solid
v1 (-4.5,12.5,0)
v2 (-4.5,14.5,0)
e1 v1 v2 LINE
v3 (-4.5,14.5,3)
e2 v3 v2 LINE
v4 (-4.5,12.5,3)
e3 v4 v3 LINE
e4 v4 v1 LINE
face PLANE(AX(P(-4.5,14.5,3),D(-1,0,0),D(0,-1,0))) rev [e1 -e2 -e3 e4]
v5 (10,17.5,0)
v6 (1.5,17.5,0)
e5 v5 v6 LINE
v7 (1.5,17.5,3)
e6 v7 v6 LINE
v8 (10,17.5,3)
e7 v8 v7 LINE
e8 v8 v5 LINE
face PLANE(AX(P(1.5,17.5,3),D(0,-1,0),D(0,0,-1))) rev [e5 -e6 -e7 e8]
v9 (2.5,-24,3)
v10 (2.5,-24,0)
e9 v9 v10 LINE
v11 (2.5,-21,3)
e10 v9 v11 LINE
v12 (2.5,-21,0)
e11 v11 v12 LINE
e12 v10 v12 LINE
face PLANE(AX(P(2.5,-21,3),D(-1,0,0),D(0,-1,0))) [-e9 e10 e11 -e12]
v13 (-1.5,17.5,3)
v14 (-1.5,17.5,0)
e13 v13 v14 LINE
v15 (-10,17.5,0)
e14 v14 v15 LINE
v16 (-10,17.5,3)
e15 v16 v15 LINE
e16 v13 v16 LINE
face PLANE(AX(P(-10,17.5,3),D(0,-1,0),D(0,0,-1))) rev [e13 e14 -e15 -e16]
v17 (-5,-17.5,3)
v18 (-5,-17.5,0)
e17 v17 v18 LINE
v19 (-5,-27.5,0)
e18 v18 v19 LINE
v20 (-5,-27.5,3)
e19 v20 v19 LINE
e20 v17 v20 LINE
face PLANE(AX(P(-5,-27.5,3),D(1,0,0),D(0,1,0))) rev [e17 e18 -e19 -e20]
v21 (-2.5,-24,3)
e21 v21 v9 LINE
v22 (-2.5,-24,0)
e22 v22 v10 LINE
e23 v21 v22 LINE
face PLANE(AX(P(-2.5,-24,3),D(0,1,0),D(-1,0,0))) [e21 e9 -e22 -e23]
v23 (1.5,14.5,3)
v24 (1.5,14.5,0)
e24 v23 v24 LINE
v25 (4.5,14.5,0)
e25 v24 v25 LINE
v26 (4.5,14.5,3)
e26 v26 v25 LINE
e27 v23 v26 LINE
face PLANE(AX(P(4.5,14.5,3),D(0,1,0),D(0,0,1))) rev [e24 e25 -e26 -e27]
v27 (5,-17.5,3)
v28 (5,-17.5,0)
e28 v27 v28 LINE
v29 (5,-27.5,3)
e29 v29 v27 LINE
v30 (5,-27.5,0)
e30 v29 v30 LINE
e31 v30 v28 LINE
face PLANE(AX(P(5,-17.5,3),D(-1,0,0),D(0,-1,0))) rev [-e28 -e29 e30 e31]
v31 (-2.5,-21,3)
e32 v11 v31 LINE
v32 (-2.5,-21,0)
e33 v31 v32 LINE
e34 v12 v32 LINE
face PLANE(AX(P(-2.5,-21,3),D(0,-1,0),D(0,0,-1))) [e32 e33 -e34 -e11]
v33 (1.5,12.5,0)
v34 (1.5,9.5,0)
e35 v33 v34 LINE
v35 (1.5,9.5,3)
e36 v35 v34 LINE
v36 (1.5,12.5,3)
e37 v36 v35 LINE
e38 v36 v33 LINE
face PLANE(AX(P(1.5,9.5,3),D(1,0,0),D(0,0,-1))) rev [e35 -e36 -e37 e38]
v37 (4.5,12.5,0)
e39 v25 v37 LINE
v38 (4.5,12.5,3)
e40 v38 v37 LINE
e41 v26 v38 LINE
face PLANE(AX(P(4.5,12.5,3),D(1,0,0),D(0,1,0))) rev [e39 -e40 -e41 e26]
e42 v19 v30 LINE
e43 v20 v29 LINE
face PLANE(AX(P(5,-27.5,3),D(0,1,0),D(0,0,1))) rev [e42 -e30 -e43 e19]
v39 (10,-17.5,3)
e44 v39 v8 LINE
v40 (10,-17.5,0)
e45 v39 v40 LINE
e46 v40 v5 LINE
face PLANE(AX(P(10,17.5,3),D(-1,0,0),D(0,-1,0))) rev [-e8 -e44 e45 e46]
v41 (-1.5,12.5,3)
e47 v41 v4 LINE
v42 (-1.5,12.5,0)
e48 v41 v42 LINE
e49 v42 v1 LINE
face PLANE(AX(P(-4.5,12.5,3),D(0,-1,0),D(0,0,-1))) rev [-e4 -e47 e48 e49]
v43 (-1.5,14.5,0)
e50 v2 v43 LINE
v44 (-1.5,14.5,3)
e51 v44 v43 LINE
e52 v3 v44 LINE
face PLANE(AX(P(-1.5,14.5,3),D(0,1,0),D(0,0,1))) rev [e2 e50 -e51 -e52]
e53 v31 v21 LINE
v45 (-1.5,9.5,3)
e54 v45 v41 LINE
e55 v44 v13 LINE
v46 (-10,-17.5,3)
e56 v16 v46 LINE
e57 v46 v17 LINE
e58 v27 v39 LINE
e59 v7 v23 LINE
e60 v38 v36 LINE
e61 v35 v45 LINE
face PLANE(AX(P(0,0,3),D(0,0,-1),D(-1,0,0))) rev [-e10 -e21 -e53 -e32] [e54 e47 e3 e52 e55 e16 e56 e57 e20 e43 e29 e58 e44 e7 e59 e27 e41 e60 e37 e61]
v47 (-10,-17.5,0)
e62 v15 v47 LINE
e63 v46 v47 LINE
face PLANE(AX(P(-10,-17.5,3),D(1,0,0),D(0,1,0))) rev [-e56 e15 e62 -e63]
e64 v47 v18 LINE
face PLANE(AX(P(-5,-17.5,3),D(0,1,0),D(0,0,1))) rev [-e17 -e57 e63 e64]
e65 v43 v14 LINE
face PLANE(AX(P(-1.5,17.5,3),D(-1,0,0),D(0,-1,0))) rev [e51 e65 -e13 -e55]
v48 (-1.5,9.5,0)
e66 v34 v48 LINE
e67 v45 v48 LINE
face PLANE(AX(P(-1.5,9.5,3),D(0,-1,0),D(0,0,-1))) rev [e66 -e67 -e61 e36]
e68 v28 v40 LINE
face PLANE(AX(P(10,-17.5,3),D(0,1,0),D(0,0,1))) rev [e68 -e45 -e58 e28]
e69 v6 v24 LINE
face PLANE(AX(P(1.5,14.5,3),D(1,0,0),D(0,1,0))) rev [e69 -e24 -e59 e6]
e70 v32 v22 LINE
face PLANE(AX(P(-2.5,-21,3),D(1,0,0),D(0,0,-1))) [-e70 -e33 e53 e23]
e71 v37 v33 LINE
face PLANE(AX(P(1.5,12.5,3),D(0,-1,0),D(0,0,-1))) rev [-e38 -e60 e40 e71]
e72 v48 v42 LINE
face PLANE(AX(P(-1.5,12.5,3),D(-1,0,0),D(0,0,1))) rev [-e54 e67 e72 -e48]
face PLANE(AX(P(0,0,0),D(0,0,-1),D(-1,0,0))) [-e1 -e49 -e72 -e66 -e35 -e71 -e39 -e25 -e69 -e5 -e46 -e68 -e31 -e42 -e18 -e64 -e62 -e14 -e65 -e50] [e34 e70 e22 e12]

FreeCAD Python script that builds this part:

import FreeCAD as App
import Part
import Sketcher

V = App.Vector
Q = App.Units.Quantity

doc = App.newDocument("Part")
body = doc.addObject("PartDesign::Body", "Body")

# Sketch on XY plane
sketch1 = body.newObject("Sketcher::SketchObject", "Sketch")
sketch1.AttachmentSupport = (doc.getObject("XY_Plane"), [""])
sketch1.MapMode = "FlatFace"
sketch1.addGeometry([
    Part.LineSegment(V(-1.5, 14.5, 0), V(-1.5, 17.5, 0)),  # 0
    Part.LineSegment(V(-1.5, 17.5, 0), V(-10, 17.5, 0)),  # 1
    Part.LineSegment(V(-10, 17.5, 0), V(-10, -17.5, 0)),  # 2
    Part.LineSegment(V(-10, -17.5, 0), V(-5, -17.5, 0)),  # 3
    Part.LineSegment(V(-5, -17.5, 0), V(-5, -27.5, 0)),  # 4
    Part.LineSegment(V(-5, -27.5, 0), V(5, -27.5, 0)),  # 5
    Part.LineSegment(V(5, -27.5, 0), V(5, -17.5, 0)),  # 6
    Part.LineSegment(V(5, -17.5, 0), V(10, -17.5, 0)),  # 7
    Part.LineSegment(V(10, -17.5, 0), V(10, 17.5, 0)),  # 8
    Part.LineSegment(V(10, 17.5, 0), V(1.5, 17.5, 0)),  # 9
    Part.LineSegment(V(1.5, 17.5, 0), V(1.5, 14.5, 0)),  # 10
    Part.LineSegment(V(1.5, 14.5, 0), V(4.5, 14.5, 0)),  # 11
    Part.LineSegment(V(4.5, 14.5, 0), V(4.5, 12.5, 0)),  # 12
    Part.LineSegment(V(4.5, 12.5, 0), V(1.5, 12.5, 0)),  # 13
    Part.LineSegment(V(1.5, 12.5, 0), V(1.5, 9.5, 0)),  # 14
    Part.LineSegment(V(1.5, 9.5, 0), V(-1.5, 9.5, 0)),  # 15
    Part.LineSegment(V(-1.5, 9.5, 0), V(-1.5, 12.5, 0)),  # 16
    Part.LineSegment(V(-1.5, 12.5, 0), V(-4.5, 12.5, 0)),  # 17
    Part.LineSegment(V(-4.5, 12.5, 0), V(-4.5, 14.5, 0)),  # 18
    Part.LineSegment(V(-4.5, 14.5, 0), V(-1.5, 14.5, 0)),  # 19
    Part.LineSegment(V(-2.5, -24, 0), V(-2.5, -21, 0)),  # 20
    Part.LineSegment(V(-2.5, -21, 0), V(2.5, -21, 0)),  # 21
    Part.LineSegment(V(2.5, -21, 0), V(2.5, -24, 0)),  # 22
    Part.LineSegment(V(2.5, -24, 0), V(-2.5, -24, 0)),  # 23
], False)
sketch1.addConstraint([
    Sketcher.Constraint("Coincident", 0, 2, 1, 1),
    Sketcher.Constraint("Coincident", 1, 2, 2, 1),
    Sketcher.Constraint("Coincident", 2, 2, 3, 1),
    Sketcher.Constraint("Coincident", 3, 2, 4, 1),
    Sketcher.Constraint("Coincident", 4, 2, 5, 1),
    Sketcher.Constraint("Coincident", 5, 2, 6, 1),
    Sketcher.Constraint("Coincident", 6, 2, 7, 1),
    Sketcher.Constraint("Coincident", 7, 2, 8, 1),
    Sketcher.Constraint("Coincident", 8, 2, 9, 1),
    Sketcher.Constraint("Coincident", 9, 2, 10, 1),
    Sketcher.Constraint("Coincident", 10, 2, 11, 1),
    Sketcher.Constraint("Coincident", 11, 2, 12, 1),
    Sketcher.Constraint("Coincident", 12, 2, 13, 1),
    Sketcher.Constraint("Coincident", 13, 2, 14, 1),
    Sketcher.Constraint("Coincident", 14, 2, 15, 1),
    Sketcher.Constraint("Coincident", 15, 2, 16, 1),
    Sketcher.Constraint("Coincident", 16, 2, 17, 1),
    Sketcher.Constraint("Coincident", 17, 2, 18, 1),
    Sketcher.Constraint("Coincident", 18, 2, 19, 1),
    Sketcher.Constraint("Coincident", 19, 2, 0, 1),
    Sketcher.Constraint("Coincident", 20, 2, 21, 1),
    Sketcher.Constraint("Coincident", 21, 2, 22, 1),
    Sketcher.Constraint("Coincident", 22, 2, 23, 1),
    Sketcher.Constraint("Coincident", 23, 2, 20, 1),
    Sketcher.Constraint("Vertical", 0),
    Sketcher.Constraint("Horizontal", 1),
    Sketcher.Constraint("Vertical", 2),
    Sketcher.Constraint("Horizontal", 3),
    Sketcher.Constraint("Vertical", 4),
    Sketcher.Constraint("Horizontal", 5),
    Sketcher.Constraint("Vertical", 6),
    Sketcher.Constraint("Horizontal", 7),
    Sketcher.Constraint("Vertical", 8),
    Sketcher.Constraint("Horizontal", 9),
    Sketcher.Constraint("Vertical", 10),
    Sketcher.Constraint("Horizontal", 11),
    Sketcher.Constraint("Vertical", 12),
    Sketcher.Constraint("Horizontal", 13),
    Sketcher.Constraint("Vertical", 14),
    Sketcher.Constraint("Horizontal", 15),
    Sketcher.Constraint("Vertical", 16),
    Sketcher.Constraint("Horizontal", 17),
    Sketcher.Constraint("Vertical", 18),
    Sketcher.Constraint("Horizontal", 19),
    Sketcher.Constraint("Vertical", 20),
    Sketcher.Constraint("Horizontal", 21),
    Sketcher.Constraint("Vertical", 22),
    Sketcher.Constraint("Horizontal", 23),
    Sketcher.Constraint("Symmetric", 1, 2, 7, 2, -1, 1),
    Sketcher.Constraint("Symmetric", 3, 2, 6, 2, -2),
    Sketcher.Constraint("Symmetric", 0, 2, 9, 2, -2),
    Sketcher.Constraint("Symmetric", 13, 2, 16, 2, -2),
    Sketcher.Constraint("Symmetric", 11, 2, 18, 2, -2),
    Sketcher.Constraint("Vertical", 10, 2, 13, 2),
    Sketcher.Constraint("Equal", 13, 15),
    Sketcher.Constraint("Equal", 7, 21),
    Sketcher.Constraint("Equal", 19, 0),
    Sketcher.Constraint("Equal", 5, 4),
    Sketcher.Constraint("Equal", 10, 14),
    Sketcher.Constraint("Equal", 16, 20),
    Sketcher.Constraint("DistanceX", 3, 1, 3, 2, Q("5 mm")),
    Sketcher.Constraint("DistanceX", 5, 1, 5, 2, Q("10 mm")),
    Sketcher.Constraint("DistanceX", 11, 1, 11, 2, Q("3 mm")),
    Sketcher.Constraint("DistanceY", 2, 2, 2, 1, Q("35 mm")),
    Sketcher.Constraint("DistanceY", 12, 2, 12, 1, Q("2 mm")),
    Sketcher.Constraint("DistanceY", 20, 2, -1, 1, Q("21 mm")),
    Sketcher.Constraint("DistanceX", 20, 2, -1, 1, Q("2.5 mm")),
])
pad1 = body.newObject("PartDesign::Pad", "Pad")
pad1.Profile = sketch1
pad1.Length = 3

doc.recompute()
